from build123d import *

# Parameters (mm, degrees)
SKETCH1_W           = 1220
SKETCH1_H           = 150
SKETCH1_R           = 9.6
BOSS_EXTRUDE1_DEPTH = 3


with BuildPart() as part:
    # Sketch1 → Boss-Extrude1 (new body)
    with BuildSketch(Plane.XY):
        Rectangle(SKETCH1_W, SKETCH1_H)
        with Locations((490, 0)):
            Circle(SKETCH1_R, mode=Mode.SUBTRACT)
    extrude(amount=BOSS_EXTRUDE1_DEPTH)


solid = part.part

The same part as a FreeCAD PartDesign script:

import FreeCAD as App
import Part
import Sketcher
Q = App.Units.Quantity


def add_polygon(sketch, points):
    """Adds a closed chain of lines whose ends are joined by coincident constraints."""
    first, n = sketch.GeometryCount, len(points)
    for a, b in zip(points, points[1:] + points[:1]):
        sketch.addGeometry(Part.LineSegment(App.Vector(*a, 0), App.Vector(*b, 0)), False)
    for i in range(n):
        sketch.addConstraint(Sketcher.Constraint("Coincident", first + i, 2, first + (i + 1) % n, 1))

doc = App.newDocument("Part")
body = doc.addObject("PartDesign::Body", "Body")

sketch1 = body.newObject("Sketcher::SketchObject", "Sketch")
sketch1.AttachmentSupport = (doc.getObject("XY_Plane"), [""])
sketch1.MapMode = "FlatFace"
add_polygon(sketch1, [(-610, 75), (-610, -75), (610, -75), (610, 75)])
sketch1.addGeometry(Part.Circle(App.Vector(490, 0, 0), App.Vector(0, 0, 1), 10), False)
sketch1.addConstraint(Sketcher.Constraint("Vertical", 0))
sketch1.addConstraint(Sketcher.Constraint("Horizontal", 1))
sketch1.addConstraint(Sketcher.Constraint("Vertical", 2))
sketch1.addConstraint(Sketcher.Constraint("Horizontal", 3))
sketch1.addConstraint(Sketcher.Constraint("Symmetric", 0, 2, 2, 2, -1, 1))
sketch1.addConstraint(Sketcher.Constraint("PointOnObject", 4, 3, -1))
sketch1.addConstraint(Sketcher.Constraint("Diameter", 4, Q("19.2 mm")))
sketch1.addConstraint(Sketcher.Constraint("DistanceX", 1, 1, 1, 2, Q("1220 mm")))
sketch1.addConstraint(Sketcher.Constraint("DistanceY", 0, 2, 0, 1, Q("150 mm")))
sketch1.addConstraint(Sketcher.Constraint("DistanceX", -1, 1, 4, 3, Q("490 mm")))
pad1 = body.newObject("PartDesign::Pad", "Pad")
pad1.Profile = sketch1
pad1.Length = 3

doc.recompute()
